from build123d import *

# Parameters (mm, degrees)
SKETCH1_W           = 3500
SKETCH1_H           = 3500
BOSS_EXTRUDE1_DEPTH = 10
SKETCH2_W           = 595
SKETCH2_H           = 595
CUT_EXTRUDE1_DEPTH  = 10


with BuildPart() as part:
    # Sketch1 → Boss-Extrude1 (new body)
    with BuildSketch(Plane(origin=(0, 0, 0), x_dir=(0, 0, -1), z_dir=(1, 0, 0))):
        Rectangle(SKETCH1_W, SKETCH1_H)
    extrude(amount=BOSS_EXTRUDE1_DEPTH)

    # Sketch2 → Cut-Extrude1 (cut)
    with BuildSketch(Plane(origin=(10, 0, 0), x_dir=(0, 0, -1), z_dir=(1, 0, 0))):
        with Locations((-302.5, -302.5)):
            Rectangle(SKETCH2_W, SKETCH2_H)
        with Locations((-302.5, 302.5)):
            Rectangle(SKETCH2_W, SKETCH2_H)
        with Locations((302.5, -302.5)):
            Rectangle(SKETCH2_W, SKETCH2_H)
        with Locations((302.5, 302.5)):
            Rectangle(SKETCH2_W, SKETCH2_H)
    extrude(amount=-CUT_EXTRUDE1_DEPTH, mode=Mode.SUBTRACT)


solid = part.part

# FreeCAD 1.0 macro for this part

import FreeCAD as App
import Part
import Sketcher
Q = App.Units.Quantity


def add_polygon(sketch, points):
    """Adds a closed chain of lines whose ends are joined by coincident constraints."""
    first, n = sketch.GeometryCount, len(points)
    for a, b in zip(points, points[1:] + points[:1]):
        sketch.addGeometry(Part.LineSegment(App.Vector(*a, 0), App.Vector(*b, 0)), False)
    for i in range(n):
        sketch.addConstraint(Sketcher.Constraint("Coincident", first + i, 2, first + (i + 1) % n, 1))

doc = App.newDocument("Part")
body = doc.addObject("PartDesign::Body", "Body")

sketch1 = body.newObject("Sketcher::SketchObject", "Sketch")
sketch1.AttachmentSupport = (doc.getObject("YZ_Plane"), [""])
sketch1.MapMode = "FlatFace"
add_polygon(sketch1, [(1750, 1750), (-1750, 1750), (-1750, -1750), (1750, -1750)])
sketch1.addConstraint([
    Sketcher.Constraint("Horizontal", 0),
    Sketcher.Constraint("Vertical", 1),
    Sketcher.Constraint("Horizontal", 2),
    Sketcher.Constraint("Vertical", 3),
    Sketcher.Constraint("Symmetric", 0, 2, 2, 2, -1, 1),
    Sketcher.Constraint("Equal", 2, 1),
    Sketcher.Constraint("DistanceX", 0, 2, 0, 1, Q("3500 mm")),
])
pad1 = body.newObject("PartDesign::Pad", "Pad")
pad1.Profile = sketch1
pad1.Length = 10

sketch2 = body.newObject("Sketcher::SketchObject", "Sketch001")
sketch2.AttachmentSupport = (doc.getObject("YZ_Plane"), [""])
sketch2.MapMode = "FlatFace"
sketch2.AttachmentOffset = App.Placement(App.Vector(0, 0, 10), App.Rotation())
add_polygon(sketch2, [(-5, 600), (-600, 600), (-600, 5), (-5, 5)])
add_polygon(sketch2, [(600, 600), (5, 600), (5, 5), (600, 5)])
add_polygon(sketch2, [(-5, -5), (-600, -5), (-600, -600), (-5, -600)])
add_polygon(sketch2, [(600, -5), (5, -5), (5, -600), (600, -600)])
sketch2.addConstraint([
    Sketcher.Constraint("Horizontal", 0),
    Sketcher.Constraint("Vertical", 1),
    Sketcher.Constraint("Horizontal", 2),
    Sketcher.Constraint("Vertical", 3),
    Sketcher.Constraint("Horizontal", 4),
    Sketcher.Constraint("Vertical", 5),
    Sketcher.Constraint("Horizontal", 6),
    Sketcher.Constraint("Vertical", 7),
    Sketcher.Constraint("Horizontal", 8),
    Sketcher.Constraint("Vertical", 9),
    Sketcher.Constraint("Horizontal", 10),
    Sketcher.Constraint("Vertical", 11),
    Sketcher.Constraint("Horizontal", 12),
    Sketcher.Constraint("Vertical", 13),
    Sketcher.Constraint("Horizontal", 14),
    Sketcher.Constraint("Vertical", 15),
    Sketcher.Constraint("Symmetric", 6, 2, 8, 2, -1, 1),
    Sketcher.Constraint("Symmetric", 4, 2, 10, 2, -1, 1),
    Sketcher.Constraint("Symmetric", 2, 2, 12, 2, -1, 1),
    Sketcher.Constraint("Symmetric", 0, 2, 14, 2, -1, 1),
    Sketcher.Constraint("Symmetric", 3, 2, 4, 2, -2),
    Sketcher.Constraint("Symmetric", 1, 2, 6, 2, -2),
    Sketcher.Constraint("Equal", 14, 1),
    Sketcher.Constraint("DistanceX", 0, 2, 0, 1, Q("595 mm")),
    Sketcher.Constraint("DistanceX", 0, 2, -1, 1, Q("600 mm")),
    Sketcher.Constraint("DistanceY", -1, 1, 0, 2, Q("600 mm")),
])
pocket1 = body.newObject("PartDesign::Pocket", "Pocket")
pocket1.Profile = sketch2
pocket1.Length = 10

doc.recompute()
